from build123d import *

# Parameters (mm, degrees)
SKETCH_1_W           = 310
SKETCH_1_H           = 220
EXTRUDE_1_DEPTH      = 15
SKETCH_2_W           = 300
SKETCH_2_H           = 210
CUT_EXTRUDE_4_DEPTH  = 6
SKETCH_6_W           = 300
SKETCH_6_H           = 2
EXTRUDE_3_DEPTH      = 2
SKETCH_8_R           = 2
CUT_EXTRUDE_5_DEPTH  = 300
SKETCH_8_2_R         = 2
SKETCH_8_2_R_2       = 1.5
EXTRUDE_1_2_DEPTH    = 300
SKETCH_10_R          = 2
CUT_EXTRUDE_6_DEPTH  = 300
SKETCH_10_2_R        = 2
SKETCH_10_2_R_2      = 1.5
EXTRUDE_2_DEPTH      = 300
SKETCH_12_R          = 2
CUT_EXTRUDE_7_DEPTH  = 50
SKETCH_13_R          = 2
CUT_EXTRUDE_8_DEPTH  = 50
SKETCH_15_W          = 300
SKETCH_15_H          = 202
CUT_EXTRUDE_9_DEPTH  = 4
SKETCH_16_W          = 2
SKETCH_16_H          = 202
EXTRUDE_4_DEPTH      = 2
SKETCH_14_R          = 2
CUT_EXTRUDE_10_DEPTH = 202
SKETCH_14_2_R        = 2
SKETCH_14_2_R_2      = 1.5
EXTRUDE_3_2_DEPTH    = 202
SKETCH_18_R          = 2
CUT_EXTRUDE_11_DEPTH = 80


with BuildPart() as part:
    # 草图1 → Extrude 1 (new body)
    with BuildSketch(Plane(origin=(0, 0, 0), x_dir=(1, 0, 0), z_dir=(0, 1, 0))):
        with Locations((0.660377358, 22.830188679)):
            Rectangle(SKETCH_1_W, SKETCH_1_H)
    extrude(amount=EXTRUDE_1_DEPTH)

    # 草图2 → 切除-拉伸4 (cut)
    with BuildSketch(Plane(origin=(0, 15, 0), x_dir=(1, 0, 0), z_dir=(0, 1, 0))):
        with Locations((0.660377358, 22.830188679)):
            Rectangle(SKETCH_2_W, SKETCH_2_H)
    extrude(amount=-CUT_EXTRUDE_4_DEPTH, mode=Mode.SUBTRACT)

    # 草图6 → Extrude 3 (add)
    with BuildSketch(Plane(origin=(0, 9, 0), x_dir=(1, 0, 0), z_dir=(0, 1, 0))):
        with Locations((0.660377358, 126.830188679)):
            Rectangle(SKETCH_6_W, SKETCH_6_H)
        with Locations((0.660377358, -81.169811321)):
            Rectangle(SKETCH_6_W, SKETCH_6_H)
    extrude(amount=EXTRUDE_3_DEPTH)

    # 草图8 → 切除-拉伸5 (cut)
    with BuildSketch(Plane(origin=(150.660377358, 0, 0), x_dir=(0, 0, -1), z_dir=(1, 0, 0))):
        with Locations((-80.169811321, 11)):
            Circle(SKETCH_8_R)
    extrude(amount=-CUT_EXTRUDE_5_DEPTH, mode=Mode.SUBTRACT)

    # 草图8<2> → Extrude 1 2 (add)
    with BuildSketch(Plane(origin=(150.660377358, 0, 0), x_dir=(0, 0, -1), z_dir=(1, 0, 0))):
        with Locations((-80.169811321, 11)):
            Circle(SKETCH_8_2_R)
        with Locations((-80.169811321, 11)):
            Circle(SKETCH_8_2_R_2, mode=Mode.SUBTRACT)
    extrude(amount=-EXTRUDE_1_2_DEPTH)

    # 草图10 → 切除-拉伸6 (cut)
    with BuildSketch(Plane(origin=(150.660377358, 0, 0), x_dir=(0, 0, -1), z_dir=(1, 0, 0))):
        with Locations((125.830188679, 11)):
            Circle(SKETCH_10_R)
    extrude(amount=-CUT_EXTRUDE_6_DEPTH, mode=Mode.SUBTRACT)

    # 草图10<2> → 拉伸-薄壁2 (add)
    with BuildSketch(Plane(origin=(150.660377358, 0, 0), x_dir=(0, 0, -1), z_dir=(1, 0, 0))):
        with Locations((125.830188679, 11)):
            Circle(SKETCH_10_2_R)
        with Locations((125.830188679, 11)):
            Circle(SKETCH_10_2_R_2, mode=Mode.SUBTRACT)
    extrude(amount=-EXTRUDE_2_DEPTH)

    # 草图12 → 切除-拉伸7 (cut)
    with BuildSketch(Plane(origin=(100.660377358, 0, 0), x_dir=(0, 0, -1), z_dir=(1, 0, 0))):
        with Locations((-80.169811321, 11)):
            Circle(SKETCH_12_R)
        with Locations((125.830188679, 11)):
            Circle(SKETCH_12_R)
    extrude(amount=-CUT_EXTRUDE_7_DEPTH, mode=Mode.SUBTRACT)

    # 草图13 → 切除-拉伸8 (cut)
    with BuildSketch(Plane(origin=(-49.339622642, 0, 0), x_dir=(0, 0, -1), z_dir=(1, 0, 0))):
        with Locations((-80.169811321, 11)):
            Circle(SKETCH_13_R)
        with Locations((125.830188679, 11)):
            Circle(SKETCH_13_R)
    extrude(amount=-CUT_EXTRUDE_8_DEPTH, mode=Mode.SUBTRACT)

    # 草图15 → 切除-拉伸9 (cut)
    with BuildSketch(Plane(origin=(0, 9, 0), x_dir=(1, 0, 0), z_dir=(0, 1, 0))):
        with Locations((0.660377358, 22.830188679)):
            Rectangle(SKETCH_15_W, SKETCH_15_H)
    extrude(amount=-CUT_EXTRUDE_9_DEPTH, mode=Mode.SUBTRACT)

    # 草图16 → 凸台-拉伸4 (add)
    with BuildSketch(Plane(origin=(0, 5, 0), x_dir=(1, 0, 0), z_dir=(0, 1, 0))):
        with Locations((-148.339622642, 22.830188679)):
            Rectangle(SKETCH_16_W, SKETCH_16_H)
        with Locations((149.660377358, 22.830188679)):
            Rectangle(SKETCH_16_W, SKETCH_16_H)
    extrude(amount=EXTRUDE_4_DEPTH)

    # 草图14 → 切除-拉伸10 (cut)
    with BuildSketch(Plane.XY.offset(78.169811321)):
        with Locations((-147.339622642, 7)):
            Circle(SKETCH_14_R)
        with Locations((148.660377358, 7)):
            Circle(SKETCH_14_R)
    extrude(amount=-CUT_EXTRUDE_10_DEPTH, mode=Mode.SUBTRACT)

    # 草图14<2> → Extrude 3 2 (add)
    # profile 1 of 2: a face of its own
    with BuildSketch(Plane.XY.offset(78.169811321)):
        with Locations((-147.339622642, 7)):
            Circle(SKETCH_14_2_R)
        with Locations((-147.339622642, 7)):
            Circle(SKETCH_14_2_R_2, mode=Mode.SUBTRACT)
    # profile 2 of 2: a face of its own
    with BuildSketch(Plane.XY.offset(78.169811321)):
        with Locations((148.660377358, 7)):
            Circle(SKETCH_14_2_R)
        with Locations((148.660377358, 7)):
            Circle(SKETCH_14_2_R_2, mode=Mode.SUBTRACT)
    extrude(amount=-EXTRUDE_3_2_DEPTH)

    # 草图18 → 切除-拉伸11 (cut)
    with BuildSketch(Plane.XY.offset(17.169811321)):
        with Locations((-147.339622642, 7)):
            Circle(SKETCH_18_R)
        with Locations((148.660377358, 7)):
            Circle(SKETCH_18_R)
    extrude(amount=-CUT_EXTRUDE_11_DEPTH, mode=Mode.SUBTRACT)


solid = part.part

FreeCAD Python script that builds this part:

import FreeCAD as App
import Part
import Sketcher
from FreeCAD import Vector


def add_polygon(sketch, points):
    """Adds a closed chain of lines whose ends are joined by coincident constraints."""
    first, n = sketch.GeometryCount, len(points)
    for a, b in zip(points, points[1:] + points[:1]):
        sketch.addGeometry(Part.LineSegment(App.Vector(*a, 0), App.Vector(*b, 0)), False)
    for i in range(n):
        sketch.addConstraint(Sketcher.Constraint("Coincident", first + i, 2, first + (i + 1) % n, 1))

doc = App.newDocument("Part")
body = doc.addObject("PartDesign::Body", "Body")

# Sketch on XZ plane
sketch1 = body.newObject("Sketcher::SketchObject", "Sketch")
sketch1.AttachmentSupport = (doc.getObject("XZ_Plane"), [""])
sketch1.MapMode = "FlatFace"
add_polygon(sketch1, [(-154, -133), (-154, 87), (156, 87), (156, -133)])  # lines 0-3
sketch1.addConstraint([
    Sketcher.Constraint("Vertical", 0),
    Sketcher.Constraint("Horizontal", 1),
    Sketcher.Constraint("Vertical", 2),
    Sketcher.Constraint("Horizontal", 3),
    Sketcher.Constraint("DistanceX", 1, 1, 1, 2, 310.0),
    Sketcher.Constraint("DistanceY", 0, 1, 0, 2, 220.0),
    Sketcher.Constraint("DistanceY", -1, 1, 0, 2, 87.169811),
    Sketcher.Constraint("DistanceX", 0, 2, -1, 1, 154.339623),
])
pad1 = body.newObject("PartDesign::Pad", "Pad")
pad1.Profile = sketch1
pad1.Length = 15
pad1.Reversed = True

# Sketch on XZ plane
sketch2 = body.newObject("Sketcher::SketchObject", "Sketch001")
sketch2.AttachmentSupport = (doc.getObject("XZ_Plane"), [""])
sketch2.MapMode = "FlatFace"
sketch2.AttachmentOffset = App.Placement(Vector(0, 0, -15), App.Rotation())
add_polygon(sketch2, [(-149, -128), (-149, 82), (151, 82), (151, -128)])  # lines 0-3
sketch2.addConstraint([
    Sketcher.Constraint("Vertical", 0),
    Sketcher.Constraint("Horizontal", 1),
    Sketcher.Constraint("Vertical", 2),
    Sketcher.Constraint("Horizontal", 3),
    Sketcher.Constraint("DistanceX", 1, 1, 1, 2, 300.0),
    Sketcher.Constraint("DistanceY", 0, 1, 0, 2, 210.0),
    Sketcher.Constraint("DistanceY", -1, 1, 0, 2, 82.169811),
    Sketcher.Constraint("DistanceX", 0, 2, -1, 1, 149.339623),
])
pocket1 = body.newObject("PartDesign::Pocket", "Pocket")
pocket1.Profile = sketch2
pocket1.Length = 6
pocket1.Reversed = True

# Sketch on XZ plane
sketch3 = body.newObject("Sketcher::SketchObject", "Sketch002")
sketch3.AttachmentSupport = (doc.getObject("XZ_Plane"), [""])
sketch3.MapMode = "FlatFace"
sketch3.AttachmentOffset = App.Placement(Vector(0, 0, -9), App.Rotation())
add_polygon(sketch3, [(-149.3, -127.8), (-149.3, -125.8), (150.7, -125.8), (150.7, -127.8)])  # lines 0-3
add_polygon(sketch3, [(-149.3, 80.2), (-149.3, 82.2), (150.7, 82.2), (150.7, 80.2)])  # lines 4-7
sketch3.addConstraint([
    Sketcher.Constraint("Vertical", 0),
    Sketcher.Constraint("Horizontal", 1),
    Sketcher.Constraint("Vertical", 2),
    Sketcher.Constraint("Horizontal", 3),
    Sketcher.Constraint("Vertical", 4),
    Sketcher.Constraint("Horizontal", 5),
    Sketcher.Constraint("Vertical", 6),
    Sketcher.Constraint("Horizontal", 7),
    Sketcher.Constraint("Vertical", 3, 2, 4, 2),
    Sketcher.Constraint("Vertical", 2, 2, 5, 2),
    Sketcher.Constraint("Equal", 2, 4),
    Sketcher.Constraint("DistanceX", 1, 1, 1, 2, 300.0),
    Sketcher.Constraint("DistanceY", 0, 1, 0, 2, 2.0),
    Sketcher.Constraint("DistanceY", 0, 2, 4, 2, 208.0),
    Sketcher.Constraint("DistanceY", 0, 2, -1, 1, 125.830189),
    Sketcher.Constraint("DistanceX", 0, 2, -1, 1, 149.339623),
])
pad2 = body.newObject("PartDesign::Pad", "Pad001")
pad2.Profile = sketch3
pad2.Length = 2
pad2.Reversed = True

# Sketch on YZ plane
sketch4 = body.newObject("Sketcher::SketchObject", "Sketch003")
sketch4.AttachmentSupport = (doc.getObject("YZ_Plane"), [""])
sketch4.MapMode = "FlatFace"
sketch4.AttachmentOffset = App.Placement(Vector(0, 0, 150.660377), App.Rotation())
sketch4.addGeometry(Part.Circle(Vector(11, 80.2, 0), Vector(0, 0, 1), 2), False)
sketch4.addConstraint([
    Sketcher.Constraint("Diameter", 0, 4.0),
    Sketcher.Constraint("DistanceX", -1, 1, 0, 3, 11.0),
    Sketcher.Constraint("DistanceY", -1, 1, 0, 3, 80.169811),
])
pocket2 = body.newObject("PartDesign::Pocket", "Pocket001")
pocket2.Profile = sketch4
pocket2.Length = 300

# Sketch on YZ plane
sketch5 = body.newObject("Sketcher::SketchObject", "Sketch004")
sketch5.AttachmentSupport = (doc.getObject("YZ_Plane"), [""])
sketch5.MapMode = "FlatFace"
sketch5.AttachmentOffset = App.Placement(Vector(0, 0, 150.660377), App.Rotation())
sketch5.addGeometry([
    Part.Circle(Vector(11, 80.2, 0), Vector(0, 0, 1), 2),
    Part.Circle(Vector(11, 80.2, 0), Vector(0, 0, 1), 1.5),
], False)
sketch5.addConstraint([
    Sketcher.Constraint("Coincident", 1, 3, 0, 3),
    Sketcher.Constraint("Diameter", 0, 4.0),
    Sketcher.Constraint("Diameter", 1, 3.0),
    Sketcher.Constraint("DistanceX", -1, 1, 0, 3, 11.0),
    Sketcher.Constraint("DistanceY", -1, 1, 0, 3, 80.169811),
])
pad3 = body.newObject("PartDesign::Pad", "Pad002")
pad3.Profile = sketch5
pad3.Length = 300
pad3.Reversed = True

# Sketch on YZ plane
sketch6 = body.newObject("Sketcher::SketchObject", "Sketch005")
sketch6.AttachmentSupport = (doc.getObject("YZ_Plane"), [""])
sketch6.MapMode = "FlatFace"
sketch6.AttachmentOffset = App.Placement(Vector(0, 0, 150.660377), App.Rotation())
sketch6.addGeometry(Part.Circle(Vector(11, -125.8, 0), Vector(0, 0, 1), 2), False)
sketch6.addConstraint([
    Sketcher.Constraint("Diameter", 0, 4.0),
    Sketcher.Constraint("DistanceX", -1, 1, 0, 3, 11.0),
    Sketcher.Constraint("DistanceY", 0, 3, -1, 1, 125.830189),
])
pocket3 = body.newObject("PartDesign::Pocket", "Pocket002")
pocket3.Profile = sketch6
pocket3.Length = 300

# Sketch on YZ plane
sketch7 = body.newObject("Sketcher::SketchObject", "Sketch006")
sketch7.AttachmentSupport = (doc.getObject("YZ_Plane"), [""])
sketch7.MapMode = "FlatFace"
sketch7.AttachmentOffset = App.Placement(Vector(0, 0, 150.660377), App.Rotation())
sketch7.addGeometry([
    Part.Circle(Vector(11, -125.8, 0), Vector(0, 0, 1), 2),
    Part.Circle(Vector(11, -125.8, 0), Vector(0, 0, 1), 1.5),
], False)
sketch7.addConstraint([
    Sketcher.Constraint("Coincident", 1, 3, 0, 3),
    Sketcher.Constraint("Diameter", 0, 4.0),
    Sketcher.Constraint("Diameter", 1, 3.0),
    Sketcher.Constraint("DistanceX", -1, 1, 0, 3, 11.0),
    Sketcher.Constraint("DistanceY", 0, 3, -1, 1, 125.830189),
])
pad4 = body.newObject("PartDesign::Pad", "Pad003")
pad4.Profile = sketch7
pad4.Length = 300
pad4.Reversed = True

# Sketch on YZ plane
sketch8 = body.newObject("Sketcher::SketchObject", "Sketch007")
sketch8.AttachmentSupport = (doc.getObject("YZ_Plane"), [""])
sketch8.MapMode = "FlatFace"
sketch8.AttachmentOffset = App.Placement(Vector(0, 0, 100.660377), App.Rotation())
sketch8.addGeometry([
    Part.Circle(Vector(11, 80.2, 0), Vector(0, 0, 1), 2),
    Part.Circle(Vector(11, -125.8, 0), Vector(0, 0, 1), 2),
], False)
sketch8.addConstraint([
    Sketcher.Constraint("Equal", 0, 1),
    Sketcher.Constraint("Vertical", 0, 3, 1, 3),
    Sketcher.Constraint("Diameter", 0, 4.0),
    Sketcher.Constraint("DistanceX", -1, 1, 0, 3, 11.0),
    Sketcher.Constraint("DistanceY", 1, 3, 0, 3, 206.0),
    Sketcher.Constraint("DistanceY", -1, 1, 0, 3, 80.169811),
])
pocket4 = body.newObject("PartDesign::Pocket", "Pocket003")
pocket4.Profile = sketch8
pocket4.Length = 50

# Sketch on YZ plane
sketch9 = body.newObject("Sketcher::SketchObject", "Sketch008")
sketch9.AttachmentSupport = (doc.getObject("YZ_Plane"), [""])
sketch9.MapMode = "FlatFace"
sketch9.AttachmentOffset = App.Placement(Vector(0, 0, -49.339623), App.Rotation())
sketch9.addGeometry([
    Part.Circle(Vector(11, 80.2, 0), Vector(0, 0, 1), 2),
    Part.Circle(Vector(11, -125.8, 0), Vector(0, 0, 1), 2),
], False)
sketch9.addConstraint([
    Sketcher.Constraint("Equal", 0, 1),
    Sketcher.Constraint("Vertical", 0, 3, 1, 3),
    Sketcher.Constraint("Diameter", 0, 4.0),
    Sketcher.Constraint("DistanceX", -1, 1, 0, 3, 11.0),
    Sketcher.Constraint("DistanceY", 1, 3, 0, 3, 206.0),
    Sketcher.Constraint("DistanceY", -1, 1, 0, 3, 80.169811),
])
pocket5 = body.newObject("PartDesign::Pocket", "Pocket004")
pocket5.Profile = sketch9
pocket5.Length = 50

# Sketch on XZ plane
sketch10 = body.newObject("Sketcher::SketchObject", "Sketch009")
sketch10.AttachmentSupport = (doc.getObject("XZ_Plane"), [""])
sketch10.MapMode = "FlatFace"
sketch10.AttachmentOffset = App.Placement(Vector(0, 0, -9), App.Rotation())
add_polygon(sketch10, [(-149, -124), (-149, 78), (151, 78), (151, -124)])  # lines 0-3
sketch10.addConstraint([
    Sketcher.Constraint("Vertical", 0),
    Sketcher.Constraint("Horizontal", 1),
    Sketcher.Constraint("Vertical", 2),
    Sketcher.Constraint("Horizontal", 3),
    Sketcher.Constraint("DistanceX", 1, 1, 1, 2, 300.0),
    Sketcher.Constraint("DistanceY", 0, 1, 0, 2, 202.0),
    Sketcher.Constraint("DistanceY", -1, 1, 0, 2, 78.169811),
    Sketcher.Constraint("DistanceX", 0, 2, -1, 1, 149.339623),
])
pocket6 = body.newObject("PartDesign::Pocket", "Pocket005")
pocket6.Profile = sketch10
pocket6.Length = 4
pocket6.Reversed = True

# Sketch on XZ plane
sketch11 = body.newObject("Sketcher::SketchObject", "Sketch010")
sketch11.AttachmentSupport = (doc.getObject("XZ_Plane"), [""])
sketch11.MapMode = "FlatFace"
sketch11.AttachmentOffset = App.Placement(Vector(0, 0, -5), App.Rotation())
add_polygon(sketch11, [(-149.3, -123.8), (-149.3, 78.2), (-147.3, 78.2), (-147.3, -123.8)])  # lines 0-3
add_polygon(sketch11, [(148.7, -123.8), (148.7, 78.2), (150.7, 78.2), (150.7, -123.8)])  # lines 4-7
sketch11.addConstraint([
    Sketcher.Constraint("Vertical", 0),
    Sketcher.Constraint("Horizontal", 1),
    Sketcher.Constraint("Vertical", 2),
    Sketcher.Constraint("Horizontal", 3),
    Sketcher.Constraint("Vertical", 4),
    Sketcher.Constraint("Horizontal", 5),
    Sketcher.Constraint("Vertical", 6),
    Sketcher.Constraint("Horizontal", 7),
    Sketcher.Constraint("Horizontal", 1, 2, 4, 2),
    Sketcher.Constraint("Horizontal", 3, 2, 6, 2),
    Sketcher.Constraint("Equal", 3, 5),
    Sketcher.Constraint("DistanceX", 1, 1, 1, 2, 2.0),
    Sketcher.Constraint("DistanceY", 0, 1, 0, 2, 202.0),
    Sketcher.Constraint("DistanceX", 1, 2, 4, 2, 296.0),
    Sketcher.Constraint("DistanceY", -1, 1, 0, 2, 78.169811),
    Sketcher.Constraint("DistanceX", 0, 2, -1, 1, 149.339623),
])
pad5 = body.newObject("PartDesign::Pad", "Pad004")
pad5.Profile = sketch11
pad5.Length = 2
pad5.Reversed = True

# Sketch on XY plane
sketch12 = body.newObject("Sketcher::SketchObject", "Sketch011")
sketch12.AttachmentSupport = (doc.getObject("XY_Plane"), [""])
sketch12.MapMode = "FlatFace"
sketch12.AttachmentOffset = App.Placement(Vector(0, 0, 78.169811), App.Rotation())
sketch12.addGeometry([
    Part.Circle(Vector(-147.3, 7, 0), Vector(0, 0, 1), 2),
    Part.Circle(Vector(148.7, 7, 0), Vector(0, 0, 1), 2),
], False)
sketch12.addConstraint([
    Sketcher.Constraint("Equal", 0, 1),
    Sketcher.Constraint("Horizontal", 0, 3, 1, 3),
    Sketcher.Constraint("Diameter", 0, 4.0),
    Sketcher.Constraint("DistanceY", -1, 1, 0, 3, 7.0),
    Sketcher.Constraint("DistanceX", 0, 3, 1, 3, 296.0),
    Sketcher.Constraint("DistanceX", 0, 3, -1, 1, 147.339623),
])
pocket7 = body.newObject("PartDesign::Pocket", "Pocket006")
pocket7.Profile = sketch12
pocket7.Length = 202

# Sketch on XY plane
sketch13 = body.newObject("Sketcher::SketchObject", "Sketch012")
sketch13.AttachmentSupport = (doc.getObject("XY_Plane"), [""])
sketch13.MapMode = "FlatFace"
sketch13.AttachmentOffset = App.Placement(Vector(0, 0, 78.169811), App.Rotation())
sketch13.addGeometry([
    Part.Circle(Vector(-147.3, 7, 0), Vector(0, 0, 1), 2),
    Part.Circle(Vector(-147.3, 7, 0), Vector(0, 0, 1), 1.5),
    Part.Circle(Vector(148.7, 7, 0), Vector(0, 0, 1), 2),
    Part.Circle(Vector(148.7, 7, 0), Vector(0, 0, 1), 1.5),
], False)
sketch13.addConstraint([
    Sketcher.Constraint("Coincident", 1, 3, 0, 3),
    Sketcher.Constraint("Coincident", 3, 3, 2, 3),
    Sketcher.Constraint("Equal", 0, 2),
    Sketcher.Constraint("Equal", 1, 3),
    Sketcher.Constraint("Horizontal", 1, 3, 2, 3),
    Sketcher.Constraint("Diameter", 0, 4.0),
    Sketcher.Constraint("Diameter", 1, 3.0),
    Sketcher.Constraint("DistanceY", -1, 1, 0, 3, 7.0),
    Sketcher.Constraint("DistanceX", 0, 3, 2, 3, 296.0),
    Sketcher.Constraint("DistanceX", 0, 3, -1, 1, 147.339623),
])
pad6 = body.newObject("PartDesign::Pad", "Pad005")
pad6.Profile = sketch13
pad6.Length = 202
pad6.Reversed = True

# Sketch on XY plane
sketch14 = body.newObject("Sketcher::SketchObject", "Sketch013")
sketch14.AttachmentSupport = (doc.getObject("XY_Plane"), [""])
sketch14.MapMode = "FlatFace"
sketch14.AttachmentOffset = App.Placement(Vector(0, 0, 17.169811), App.Rotation())
sketch14.addGeometry([
    Part.Circle(Vector(-147.3, 7, 0), Vector(0, 0, 1), 2),
    Part.Circle(Vector(148.7, 7, 0), Vector(0, 0, 1), 2),
], False)
sketch14.addConstraint([
    Sketcher.Constraint("Equal", 0, 1),
    Sketcher.Constraint("Horizontal", 0, 3, 1, 3),
    Sketcher.Constraint("Diameter", 0, 4.0),
    Sketcher.Constraint("DistanceY", -1, 1, 0, 3, 7.0),
    Sketcher.Constraint("DistanceX", 0, 3, 1, 3, 296.0),
    Sketcher.Constraint("DistanceX", 0, 3, -1, 1, 147.339623),
])
pocket8 = body.newObject("PartDesign::Pocket", "Pocket007")
pocket8.Profile = sketch14
pocket8.Length = 80

doc.recompute()
